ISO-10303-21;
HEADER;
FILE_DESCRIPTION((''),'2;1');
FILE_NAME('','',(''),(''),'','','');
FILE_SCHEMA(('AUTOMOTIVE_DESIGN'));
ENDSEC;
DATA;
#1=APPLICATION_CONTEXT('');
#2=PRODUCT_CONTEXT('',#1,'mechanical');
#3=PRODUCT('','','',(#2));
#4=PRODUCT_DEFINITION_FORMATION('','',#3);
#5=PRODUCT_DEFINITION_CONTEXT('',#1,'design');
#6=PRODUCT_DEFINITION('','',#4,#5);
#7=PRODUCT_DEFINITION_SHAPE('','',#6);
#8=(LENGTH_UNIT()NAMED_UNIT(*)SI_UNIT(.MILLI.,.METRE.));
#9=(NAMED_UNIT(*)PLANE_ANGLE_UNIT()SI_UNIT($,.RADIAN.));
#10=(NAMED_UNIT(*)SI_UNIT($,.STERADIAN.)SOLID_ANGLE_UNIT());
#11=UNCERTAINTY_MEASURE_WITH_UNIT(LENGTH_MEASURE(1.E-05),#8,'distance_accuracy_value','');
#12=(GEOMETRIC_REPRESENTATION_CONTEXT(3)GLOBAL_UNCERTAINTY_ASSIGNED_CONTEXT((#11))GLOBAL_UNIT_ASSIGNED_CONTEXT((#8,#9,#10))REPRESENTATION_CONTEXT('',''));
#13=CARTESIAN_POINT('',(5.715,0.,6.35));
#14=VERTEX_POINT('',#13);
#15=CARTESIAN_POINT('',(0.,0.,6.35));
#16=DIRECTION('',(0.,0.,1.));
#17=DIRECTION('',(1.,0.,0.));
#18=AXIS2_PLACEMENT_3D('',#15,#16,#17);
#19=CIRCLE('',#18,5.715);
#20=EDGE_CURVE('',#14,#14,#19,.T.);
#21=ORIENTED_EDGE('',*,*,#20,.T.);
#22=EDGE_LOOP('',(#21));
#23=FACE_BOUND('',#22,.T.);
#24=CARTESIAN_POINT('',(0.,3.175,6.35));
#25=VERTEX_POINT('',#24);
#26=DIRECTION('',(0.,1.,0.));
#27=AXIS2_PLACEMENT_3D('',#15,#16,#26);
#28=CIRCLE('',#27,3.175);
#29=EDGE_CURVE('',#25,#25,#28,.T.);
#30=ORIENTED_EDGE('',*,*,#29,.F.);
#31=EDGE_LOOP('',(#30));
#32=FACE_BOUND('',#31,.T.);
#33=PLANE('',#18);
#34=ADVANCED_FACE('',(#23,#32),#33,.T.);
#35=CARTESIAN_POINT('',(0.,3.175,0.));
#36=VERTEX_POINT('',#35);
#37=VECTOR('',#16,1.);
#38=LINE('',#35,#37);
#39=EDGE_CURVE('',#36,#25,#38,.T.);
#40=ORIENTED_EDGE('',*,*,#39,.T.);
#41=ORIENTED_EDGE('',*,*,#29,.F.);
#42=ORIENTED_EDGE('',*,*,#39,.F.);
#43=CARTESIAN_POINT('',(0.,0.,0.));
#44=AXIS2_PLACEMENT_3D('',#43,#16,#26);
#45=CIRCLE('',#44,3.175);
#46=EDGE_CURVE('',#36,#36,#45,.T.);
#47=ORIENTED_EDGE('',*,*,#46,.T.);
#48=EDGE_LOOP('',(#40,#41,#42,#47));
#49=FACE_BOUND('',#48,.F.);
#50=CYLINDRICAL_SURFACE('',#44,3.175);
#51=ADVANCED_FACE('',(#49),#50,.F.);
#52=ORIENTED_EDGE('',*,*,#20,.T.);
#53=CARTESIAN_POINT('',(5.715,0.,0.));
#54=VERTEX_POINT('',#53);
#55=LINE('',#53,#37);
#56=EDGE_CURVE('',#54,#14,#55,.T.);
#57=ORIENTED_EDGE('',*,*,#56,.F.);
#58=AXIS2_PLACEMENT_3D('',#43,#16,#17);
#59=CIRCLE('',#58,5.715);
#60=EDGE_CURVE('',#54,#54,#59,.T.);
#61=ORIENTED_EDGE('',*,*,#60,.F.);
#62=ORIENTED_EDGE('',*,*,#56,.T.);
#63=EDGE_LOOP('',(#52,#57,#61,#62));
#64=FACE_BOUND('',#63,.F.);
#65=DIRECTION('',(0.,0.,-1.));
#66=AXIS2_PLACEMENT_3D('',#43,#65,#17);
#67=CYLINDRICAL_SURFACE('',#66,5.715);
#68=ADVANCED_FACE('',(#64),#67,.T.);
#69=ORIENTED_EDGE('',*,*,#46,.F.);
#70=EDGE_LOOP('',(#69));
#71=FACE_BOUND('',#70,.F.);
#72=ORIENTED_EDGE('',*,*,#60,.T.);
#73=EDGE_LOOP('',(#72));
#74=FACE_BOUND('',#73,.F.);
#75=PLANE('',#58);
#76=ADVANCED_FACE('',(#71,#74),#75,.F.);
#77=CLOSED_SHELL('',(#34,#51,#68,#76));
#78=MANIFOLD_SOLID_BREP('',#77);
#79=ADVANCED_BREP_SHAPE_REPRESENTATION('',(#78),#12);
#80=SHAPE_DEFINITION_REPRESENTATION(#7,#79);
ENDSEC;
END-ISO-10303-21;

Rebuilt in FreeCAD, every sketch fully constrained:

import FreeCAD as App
import Part
import Sketcher

V = App.Vector
Q = App.Units.Quantity

doc = App.newDocument("Part")
body = doc.addObject("PartDesign::Body", "Body")

# Sketch on XY plane
sketch1 = doc.addObject("Sketcher::SketchObject", "Sketch")
body.addObject(sketch1)
sketch1.AttachmentSupport = (doc.XY_Plane, [""])
sketch1.MapMode = "FlatFace"
sketch1.addGeometry(Part.Circle(V(0, 0, 0), V(0, 0, 1), 6), False)
sketch1.addConstraint([
    Sketcher.Constraint("Coincident", 0, 3, -1, 1),
    Sketcher.Constraint("Diameter", 0, Q("0.45 in")),
])
pad1 = doc.addObject("PartDesign::Pad", "Pad")
body.addObject(pad1)
pad1.Profile = sketch1
pad1.Length = Q("0.25 in")

# Sketch on XY plane
sketch2 = doc.addObject("Sketcher::SketchObject", "Sketch001")
body.addObject(sketch2)
sketch2.AttachmentSupport = (doc.XY_Plane, [""])
sketch2.MapMode = "FlatFace"
sketch2.addGeometry(Part.Circle(V(0, 0, 0), V(0, 0, 1), 3.2), False)
sketch2.addConstraint([
    Sketcher.Constraint("Coincident", 0, 3, -1, 1),
    Sketcher.Constraint("Diameter", 0, Q("0.25 in")),
])
doc.recompute()
hole = doc.addObject("PartDesign::Hole", "Hole")
body.addObject(hole)
hole.Profile = sketch2
hole.ThreadType = "None"
hole.Diameter = Q("0.25 in")
hole.DepthType = "ThroughAll"
hole.Reversed = True

doc.recompute()
